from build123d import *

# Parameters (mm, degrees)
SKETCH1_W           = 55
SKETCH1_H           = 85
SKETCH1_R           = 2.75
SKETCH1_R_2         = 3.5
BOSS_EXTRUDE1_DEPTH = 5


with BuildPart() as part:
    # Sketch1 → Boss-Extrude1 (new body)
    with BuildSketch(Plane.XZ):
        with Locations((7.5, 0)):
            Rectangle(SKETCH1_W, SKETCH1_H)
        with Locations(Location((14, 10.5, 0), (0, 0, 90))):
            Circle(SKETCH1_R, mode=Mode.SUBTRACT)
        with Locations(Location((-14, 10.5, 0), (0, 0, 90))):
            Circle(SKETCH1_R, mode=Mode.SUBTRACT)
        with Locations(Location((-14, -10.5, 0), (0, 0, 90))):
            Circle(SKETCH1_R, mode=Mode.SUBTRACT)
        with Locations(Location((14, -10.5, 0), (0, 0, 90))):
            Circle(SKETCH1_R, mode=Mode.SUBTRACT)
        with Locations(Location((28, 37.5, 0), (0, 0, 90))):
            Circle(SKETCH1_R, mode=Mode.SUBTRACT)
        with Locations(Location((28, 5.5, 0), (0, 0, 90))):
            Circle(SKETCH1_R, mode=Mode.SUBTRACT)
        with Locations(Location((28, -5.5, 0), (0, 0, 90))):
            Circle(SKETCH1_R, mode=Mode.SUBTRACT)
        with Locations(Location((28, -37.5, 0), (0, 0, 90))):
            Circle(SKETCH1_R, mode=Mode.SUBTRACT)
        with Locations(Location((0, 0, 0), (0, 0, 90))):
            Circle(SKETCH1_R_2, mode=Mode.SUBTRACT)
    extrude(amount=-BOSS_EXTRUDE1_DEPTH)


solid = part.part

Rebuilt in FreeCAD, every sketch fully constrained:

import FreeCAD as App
import Part
import Sketcher
from FreeCAD import Vector
Q = App.Units.Quantity

doc = App.newDocument("Part")
params = doc.addObject("Spreadsheet::Sheet", "Params")
for row, (alias, value) in enumerate([
    ("sketch1_diameter", "7 mm"),
    ("sketch1_diameter2", "5.5 mm"),
    ("sketch1_width", "55 mm"),
    ("sketch1_height", "85 mm"),
    ("pad1_length", "5 mm"),
], start=1):
    params.set(f"A{row}", alias)
    params.set(f"B{row}", "=" + value)
    params.setAlias(f"B{row}", alias)

body = doc.addObject("PartDesign::Body", "Body")

# Sketch on XZ plane
sketch1 = body.newObject("Sketcher::SketchObject", "Sketch")
sketch1.AttachmentSupport = (doc.getObject("XZ_Plane"), [""])
sketch1.MapMode = "FlatFace"
sketch1.addGeometry([
    Part.LineSegment(Vector(-20, 42.5, 0), Vector(-20, -42.5, 0)),  # 0
    Part.LineSegment(Vector(-20, -42.5, 0), Vector(35, -42.5, 0)),  # 1
    Part.LineSegment(Vector(35, -42.5, 0), Vector(35, 42.5, 0)),  # 2
    Part.LineSegment(Vector(35, 42.5, 0), Vector(-20, 42.5, 0)),  # 3
    Part.Circle(Vector(-14, -10.5, 0), Vector(0, 0, 1), 2.8),  # 4
    Part.Circle(Vector(0, 0, 0), Vector(0, 0, 1), 3.5),  # 5
    Part.Circle(Vector(28, -37.5, 0), Vector(0, 0, 1), 2.8),  # 6
    Part.Circle(Vector(14, -10.5, 0), Vector(0, 0, 1), 2.8),  # 7
    Part.Circle(Vector(28, -5.5, 0), Vector(0, 0, 1), 2.8),  # 8
    Part.Circle(Vector(-14, 10.5, 0), Vector(0, 0, 1), 2.8),  # 9
    Part.Circle(Vector(14, 10.5, 0), Vector(0, 0, 1), 2.8),  # 10
    Part.Circle(Vector(28, 5.5, 0), Vector(0, 0, 1), 2.8),  # 11
    Part.Circle(Vector(28, 37.5, 0), Vector(0, 0, 1), 2.8),  # 12
], False)
sketch1.addConstraint([
    Sketcher.Constraint("Coincident", 0, 2, 1, 1),
    Sketcher.Constraint("Coincident", 1, 2, 2, 1),
    Sketcher.Constraint("Coincident", 2, 2, 3, 1),
    Sketcher.Constraint("Coincident", 3, 2, 0, 1),
    Sketcher.Constraint("Vertical", 0),
    Sketcher.Constraint("Horizontal", 1),
    Sketcher.Constraint("Vertical", 2),
    Sketcher.Constraint("Horizontal", 3),
    Sketcher.Constraint("Coincident", 5, 3, -1, 1),
    Sketcher.Constraint("Equal", 4, 6),
    Sketcher.Constraint("Equal", 6, 7),
    Sketcher.Constraint("Equal", 7, 8),
    Sketcher.Constraint("Equal", 8, 9),
    Sketcher.Constraint("Equal", 9, 10),
    Sketcher.Constraint("Equal", 10, 11),
    Sketcher.Constraint("Equal", 11, 12),
    Sketcher.Constraint("Symmetric", 7, 3, 9, 3, -1, 1),
    Sketcher.Constraint("Symmetric", 4, 3, 10, 3, -1, 1),
    Sketcher.Constraint("Symmetric", 4, 3, 7, 3, -2),
    Sketcher.Constraint("Symmetric", 8, 3, 11, 3, -1),
    Sketcher.Constraint("Symmetric", 6, 3, 12, 3, -1),
    Sketcher.Constraint("Vertical", 6, 3, 8, 3),
    Sketcher.Constraint("Diameter", 5, Q("7 mm")),
    Sketcher.Constraint("Diameter", 4, Q("5.5 mm")),
    Sketcher.Constraint("DistanceX", 1, 1, 1, 2, Q("55 mm")),
    Sketcher.Constraint("DistanceY", 0, 2, 0, 1, Q("85 mm")),
    Sketcher.Constraint("DistanceX", 4, 3, -1, 1, Q("14 mm")),
    Sketcher.Constraint("DistanceX", -1, 1, 6, 3, Q("28 mm")),
    Sketcher.Constraint("DistanceX", 0, 2, -1, 1, Q("20 mm")),
    Sketcher.Constraint("DistanceY", 6, 3, 4, 3, Q("27 mm")),
    Sketcher.Constraint("DistanceY", 7, 3, 8, 3, Q("5 mm")),
    Sketcher.Constraint("DistanceY", 4, 3, 9, 3, Q("21 mm")),
    Sketcher.Constraint("DistanceY", 0, 2, 4, 3, Q("32 mm")),
])
sketch1.setExpression("Constraints[22]", "Params.sketch1_diameter")
sketch1.setExpression("Constraints[23]", "Params.sketch1_diameter2")
sketch1.setExpression("Constraints[24]", "Params.sketch1_width")
sketch1.setExpression("Constraints[25]", "Params.sketch1_height")
pad1 = body.newObject("PartDesign::Pad", "Pad")
pad1.Profile = sketch1
pad1.setExpression("Length", "Params.pad1_length")
pad1.Reversed = True

doc.recompute()
